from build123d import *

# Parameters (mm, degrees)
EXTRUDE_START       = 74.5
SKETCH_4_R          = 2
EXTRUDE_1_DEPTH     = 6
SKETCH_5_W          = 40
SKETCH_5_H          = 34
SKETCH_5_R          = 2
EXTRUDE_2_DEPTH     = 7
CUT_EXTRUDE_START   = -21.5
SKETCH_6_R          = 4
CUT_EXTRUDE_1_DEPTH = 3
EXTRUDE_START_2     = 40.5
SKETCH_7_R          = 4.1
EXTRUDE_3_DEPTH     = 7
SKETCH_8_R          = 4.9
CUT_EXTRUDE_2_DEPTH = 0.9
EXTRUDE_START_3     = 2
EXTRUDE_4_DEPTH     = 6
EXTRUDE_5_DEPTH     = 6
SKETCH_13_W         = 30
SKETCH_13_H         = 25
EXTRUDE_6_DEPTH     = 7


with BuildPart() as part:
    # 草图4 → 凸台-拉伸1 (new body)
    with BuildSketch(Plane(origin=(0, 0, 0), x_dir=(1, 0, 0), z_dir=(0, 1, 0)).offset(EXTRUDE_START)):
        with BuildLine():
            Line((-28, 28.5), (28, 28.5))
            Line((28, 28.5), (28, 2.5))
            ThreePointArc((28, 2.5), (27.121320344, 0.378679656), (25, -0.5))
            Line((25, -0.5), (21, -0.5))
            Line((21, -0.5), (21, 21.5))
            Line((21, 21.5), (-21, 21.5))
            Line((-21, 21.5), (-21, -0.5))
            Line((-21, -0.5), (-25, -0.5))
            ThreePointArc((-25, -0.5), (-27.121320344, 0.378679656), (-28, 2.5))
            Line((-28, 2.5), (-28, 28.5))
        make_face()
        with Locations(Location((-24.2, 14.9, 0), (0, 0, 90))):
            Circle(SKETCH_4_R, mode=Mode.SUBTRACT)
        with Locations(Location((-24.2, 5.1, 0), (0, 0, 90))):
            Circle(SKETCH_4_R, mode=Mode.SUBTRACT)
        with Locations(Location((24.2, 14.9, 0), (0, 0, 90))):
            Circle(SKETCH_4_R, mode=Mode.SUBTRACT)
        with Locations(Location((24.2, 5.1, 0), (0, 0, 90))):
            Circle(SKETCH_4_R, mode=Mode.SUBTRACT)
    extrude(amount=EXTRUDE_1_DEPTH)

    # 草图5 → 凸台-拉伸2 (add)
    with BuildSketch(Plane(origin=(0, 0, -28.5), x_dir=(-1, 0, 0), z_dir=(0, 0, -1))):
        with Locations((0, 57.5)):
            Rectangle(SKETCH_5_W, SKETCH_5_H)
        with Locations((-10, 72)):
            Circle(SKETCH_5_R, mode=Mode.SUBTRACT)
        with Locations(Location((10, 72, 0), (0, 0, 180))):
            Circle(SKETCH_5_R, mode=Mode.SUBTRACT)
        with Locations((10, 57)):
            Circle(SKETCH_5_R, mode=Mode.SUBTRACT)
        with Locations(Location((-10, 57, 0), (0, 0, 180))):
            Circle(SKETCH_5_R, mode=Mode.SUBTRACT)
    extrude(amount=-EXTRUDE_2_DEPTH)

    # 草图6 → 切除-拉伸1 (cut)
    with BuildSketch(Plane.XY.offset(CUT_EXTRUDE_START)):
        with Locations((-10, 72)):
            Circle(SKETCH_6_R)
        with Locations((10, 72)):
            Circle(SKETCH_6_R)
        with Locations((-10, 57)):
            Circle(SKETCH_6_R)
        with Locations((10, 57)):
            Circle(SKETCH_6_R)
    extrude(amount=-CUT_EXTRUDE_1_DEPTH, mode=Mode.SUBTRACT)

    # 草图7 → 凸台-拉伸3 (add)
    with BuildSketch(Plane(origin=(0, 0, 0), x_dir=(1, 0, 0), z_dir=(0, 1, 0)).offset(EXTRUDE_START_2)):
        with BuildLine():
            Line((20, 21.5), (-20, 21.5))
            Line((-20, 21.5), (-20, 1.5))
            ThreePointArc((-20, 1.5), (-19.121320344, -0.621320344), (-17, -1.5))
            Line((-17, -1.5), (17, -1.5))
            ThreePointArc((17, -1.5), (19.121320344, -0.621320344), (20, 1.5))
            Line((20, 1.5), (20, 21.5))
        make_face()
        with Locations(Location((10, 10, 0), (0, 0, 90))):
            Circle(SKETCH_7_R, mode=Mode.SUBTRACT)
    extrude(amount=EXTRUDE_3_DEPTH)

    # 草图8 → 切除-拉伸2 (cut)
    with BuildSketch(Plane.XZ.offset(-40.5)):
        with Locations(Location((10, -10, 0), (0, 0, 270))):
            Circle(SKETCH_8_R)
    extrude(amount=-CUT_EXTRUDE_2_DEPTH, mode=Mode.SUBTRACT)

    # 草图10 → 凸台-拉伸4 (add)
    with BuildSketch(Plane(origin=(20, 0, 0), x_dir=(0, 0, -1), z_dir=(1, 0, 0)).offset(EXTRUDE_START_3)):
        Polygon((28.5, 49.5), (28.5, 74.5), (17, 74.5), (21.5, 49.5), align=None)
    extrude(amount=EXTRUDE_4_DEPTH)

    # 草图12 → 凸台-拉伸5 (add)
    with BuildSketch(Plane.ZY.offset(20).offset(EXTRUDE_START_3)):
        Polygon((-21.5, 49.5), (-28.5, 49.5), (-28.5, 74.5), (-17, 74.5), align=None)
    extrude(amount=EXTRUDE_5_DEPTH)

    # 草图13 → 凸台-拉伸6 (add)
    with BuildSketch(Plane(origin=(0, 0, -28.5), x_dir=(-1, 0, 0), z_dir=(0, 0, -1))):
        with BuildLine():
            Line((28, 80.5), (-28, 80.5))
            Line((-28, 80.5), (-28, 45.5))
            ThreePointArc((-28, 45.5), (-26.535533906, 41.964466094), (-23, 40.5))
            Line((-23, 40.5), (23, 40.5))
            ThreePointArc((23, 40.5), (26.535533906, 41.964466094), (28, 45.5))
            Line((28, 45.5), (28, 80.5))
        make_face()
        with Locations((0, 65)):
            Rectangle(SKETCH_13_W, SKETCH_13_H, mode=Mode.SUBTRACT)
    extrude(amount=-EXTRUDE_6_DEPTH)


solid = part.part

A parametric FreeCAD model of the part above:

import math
import FreeCAD as App
import Part
import Sketcher

V = App.Vector

doc = App.newDocument("Part")
params = doc.addObject("Spreadsheet::Sheet", "Params")
for row, (alias, value) in enumerate([
    ("sketch1_diameter", "4 mm"),
    ("sketch1_radius", "3 mm"),
    ("sketch1_width", "56 mm"),
    ("sketch1_width2", "4 mm"),
    ("sketch1_height", "26 mm"),
    ("pad1_length", "6 mm"),
    ("sketch2_diameter", "4 mm"),
    ("sketch2_width", "40 mm"),
    ("sketch2_height", "34 mm"),
    ("pad2_length", "7 mm"),
    ("sketch3_diameter", "8 mm"),
    ("pocket1_length", "3 mm"),
    ("sketch4_radius", "3 mm"),
    ("sketch4_diameter", "8.2 mm"),
    ("sketch4_width", "40 mm"),
    ("sketch4_height", "20 mm"),
    ("pad3_length", "7 mm"),
    ("sketch5_diameter", "9.8 mm"),
    ("pocket2_length", "0.9 mm"),
    ("sketch6_width", "25 mm"),
    ("sketch6_height", "7 mm"),
    ("sketch6_height2", "11.5 mm"),
    ("pad4_length", "6 mm"),
    ("sketch7_width", "25 mm"),
    ("sketch7_height", "7 mm"),
    ("sketch7_height2", "11.5 mm"),
    ("pad5_length", "6 mm"),
    ("sketch8_radius", "5 mm"),
    ("sketch8_width", "56 mm"),
    ("sketch8_width2", "30 mm"),
    ("sketch8_height", "35 mm"),
    ("sketch8_height2", "25 mm"),
    ("pad6_length", "7 mm"),
], start=1):
    params.set(f"A{row}", alias)
    params.set(f"B{row}", "=" + value)
    params.setAlias(f"B{row}", alias)

body = doc.addObject("PartDesign::Body", "Body")

# Sketch on XZ plane
sketch1 = doc.addObject("Sketcher::SketchObject", "Sketch")
body.addObject(sketch1)
sketch1.AttachmentSupport = (doc.XZ_Plane, [""])
sketch1.MapMode = "FlatFace"
sketch1.AttachmentOffset = App.Placement(V(0, 0, -74.5), App.Rotation())
sketch1.addGeometry([
    Part.LineSegment(V(28, -28.5, 0), V(-28, -28.5, 0)),  # 0
    Part.LineSegment(V(-28, -28.5, 0), V(-28, -2.5, 0)),  # 1
    Part.ArcOfCircle(Part.Circle(V(-25, -2.5, 0), V(0, 0, 1), 3), math.radians(90), math.radians(180)),  # 2
    Part.LineSegment(V(-25, 0.5, 0), V(-21, 0.5, 0)),  # 3
    Part.LineSegment(V(-21, 0.5, 0), V(-21, -21.5, 0)),  # 4
    Part.LineSegment(V(-21, -21.5, 0), V(21, -21.5, 0)),  # 5
    Part.LineSegment(V(21, -21.5, 0), V(21, 0.5, 0)),  # 6
    Part.LineSegment(V(21, 0.5, 0), V(25, 0.5, 0)),  # 7
    Part.ArcOfCircle(Part.Circle(V(25, -2.5, 0), V(0, 0, 1), 3), math.radians(0), math.radians(90)),  # 8
    Part.LineSegment(V(28, -2.5, 0), V(28, -28.5, 0)),  # 9
    Part.Circle(V(24.2, -5.1, 0), V(0, 0, 1), 2),  # 10
    Part.Circle(V(-24.2, -5.1, 0), V(0, 0, 1), 2),  # 11
    Part.Circle(V(24.2, -14.9, 0), V(0, 0, 1), 2),  # 12
    Part.Circle(V(-24.2, -14.9, 0), V(0, 0, 1), 2),  # 13
], False)
sketch1.addConstraint([
    Sketcher.Constraint("Coincident", 0, 2, 1, 1),
    Sketcher.Constraint("Tangent", 1, 2, 2, 2),
    Sketcher.Constraint("Tangent", 2, 1, 3, 1),
    Sketcher.Constraint("Coincident", 3, 2, 4, 1),
    Sketcher.Constraint("Coincident", 4, 2, 5, 1),
    Sketcher.Constraint("Coincident", 5, 2, 6, 1),
    Sketcher.Constraint("Coincident", 6, 2, 7, 1),
    Sketcher.Constraint("Tangent", 7, 2, 8, 2),
    Sketcher.Constraint("Tangent", 8, 1, 9, 1),
    Sketcher.Constraint("Coincident", 9, 2, 0, 1),
    Sketcher.Constraint("Horizontal", 0),
    Sketcher.Constraint("Vertical", 1),
    Sketcher.Constraint("Horizontal", 3),
    Sketcher.Constraint("Vertical", 4),
    Sketcher.Constraint("Horizontal", 5),
    Sketcher.Constraint("Vertical", 6),
    Sketcher.Constraint("Horizontal", 7),
    Sketcher.Constraint("Vertical", 9),
    Sketcher.Constraint("Equal", 2, 8),
    Sketcher.Constraint("Equal", 10, 11),
    Sketcher.Constraint("Equal", 11, 12),
    Sketcher.Constraint("Equal", 12, 13),
    Sketcher.Constraint("Symmetric", 2, 3, 8, 3, -2),
    Sketcher.Constraint("Symmetric", 10, 3, 11, 3, -2),
    Sketcher.Constraint("Symmetric", 12, 3, 13, 3, -2),
    Sketcher.Constraint("Vertical", 10, 3, 12, 3),
    Sketcher.Constraint("Equal", 3, 7),
    Sketcher.Constraint("Diameter", 10, 4.0),
    Sketcher.Constraint("Radius", 2, 3.0),
    Sketcher.Constraint("DistanceX", 0, 2, 0, 1, 56.0),
    Sketcher.Constraint("DistanceX", 3, 1, 3, 2, 4.0),
    Sketcher.Constraint("DistanceY", 1, 1, 1, 2, 26.0),
    Sketcher.Constraint("DistanceY", 4, 2, 4, 1, 22.0),
    Sketcher.Constraint("DistanceY", 2, 3, -1, 1, 2.5),
    Sketcher.Constraint("DistanceX", -1, 1, 10, 3, 24.2),
    Sketcher.Constraint("DistanceY", 10, 3, -1, 1, 5.1),
    Sketcher.Constraint("DistanceY", 12, 3, -1, 1, 14.9),
])
sketch1.setExpression("Constraints[27]", "Params.sketch1_diameter")
sketch1.setExpression("Constraints[28]", "Params.sketch1_radius")
sketch1.setExpression("Constraints[29]", "Params.sketch1_width")
sketch1.setExpression("Constraints[30]", "Params.sketch1_width2")
sketch1.setExpression("Constraints[31]", "Params.sketch1_height")
pad1 = doc.addObject("PartDesign::Pad", "Pad")
body.addObject(pad1)
pad1.Profile = sketch1
pad1.setExpression("Length", "Params.pad1_length")
pad1.Reversed = True

# Sketch on XY plane
sketch2 = doc.addObject("Sketcher::SketchObject", "Sketch001")
body.addObject(sketch2)
sketch2.AttachmentSupport = (doc.XY_Plane, [""])
sketch2.MapMode = "FlatFace"
sketch2.AttachmentOffset = App.Placement(V(0, 0, -28.5), App.Rotation())
sketch2.addGeometry([
    Part.LineSegment(V(20, 74.5, 0), V(20, 40.5, 0)),  # 0
    Part.LineSegment(V(20, 40.5, 0), V(-20, 40.5, 0)),  # 1
    Part.LineSegment(V(-20, 40.5, 0), V(-20, 74.5, 0)),  # 2
    Part.LineSegment(V(-20, 74.5, 0), V(20, 74.5, 0)),  # 3
    Part.Circle(V(10, 57, 0), V(0, 0, 1), 2),  # 4
    Part.Circle(V(-10, 57, 0), V(0, 0, 1), 2),  # 5
    Part.Circle(V(10, 72, 0), V(0, 0, 1), 2),  # 6
    Part.Circle(V(-10, 72, 0), V(0, 0, 1), 2),  # 7
], False)
sketch2.addConstraint([
    Sketcher.Constraint("Coincident", 0, 2, 1, 1),
    Sketcher.Constraint("Coincident", 1, 2, 2, 1),
    Sketcher.Constraint("Coincident", 2, 2, 3, 1),
    Sketcher.Constraint("Coincident", 3, 2, 0, 1),
    Sketcher.Constraint("Vertical", 0),
    Sketcher.Constraint("Horizontal", 1),
    Sketcher.Constraint("Vertical", 2),
    Sketcher.Constraint("Horizontal", 3),
    Sketcher.Constraint("Equal", 4, 5),
    Sketcher.Constraint("Equal", 5, 6),
    Sketcher.Constraint("Equal", 6, 7),
    Sketcher.Constraint("Symmetric", 4, 3, 5, 3, -2),
    Sketcher.Constraint("Symmetric", 6, 3, 7, 3, -2),
    Sketcher.Constraint("Vertical", 4, 3, 6, 3),
    Sketcher.Constraint("Diameter", 4, 4.0),
    Sketcher.Constraint("DistanceX", 1, 2, 1, 1, 40.0),
    Sketcher.Constraint("DistanceY", 0, 2, 0, 1, 34.0),
    Sketcher.Constraint("DistanceX", -1, 1, 4, 3, 10.0),
    Sketcher.Constraint("DistanceY", -1, 1, 4, 3, 57.0),
    Sketcher.Constraint("DistanceY", -1, 1, 6, 3, 72.0),
    Sketcher.Constraint("DistanceX", -1, 1, 0, 2, 20.0),
    Sketcher.Constraint("DistanceY", -1, 1, 0, 2, 40.5),
])
sketch2.setExpression("Constraints[14]", "Params.sketch2_diameter")
sketch2.setExpression("Constraints[15]", "Params.sketch2_width")
sketch2.setExpression("Constraints[16]", "Params.sketch2_height")
pad2 = doc.addObject("PartDesign::Pad", "Pad001")
body.addObject(pad2)
pad2.Profile = sketch2
pad2.setExpression("Length", "Params.pad2_length")

# Sketch on XY plane
sketch3 = doc.addObject("Sketcher::SketchObject", "Sketch002")
body.addObject(sketch3)
sketch3.AttachmentSupport = (doc.XY_Plane, [""])
sketch3.MapMode = "FlatFace"
sketch3.AttachmentOffset = App.Placement(V(0, 0, -21.5), App.Rotation())
sketch3.addGeometry([
    Part.Circle(V(-10, 72, 0), V(0, 0, 1), 4),
    Part.Circle(V(10, 72, 0), V(0, 0, 1), 4),
    Part.Circle(V(-10, 57, 0), V(0, 0, 1), 4),
    Part.Circle(V(10, 57, 0), V(0, 0, 1), 4),
], False)
sketch3.addConstraint([
    Sketcher.Constraint("Equal", 0, 1),
    Sketcher.Constraint("Equal", 1, 2),
    Sketcher.Constraint("Equal", 2, 3),
    Sketcher.Constraint("Symmetric", 0, 3, 1, 3, -2),
    Sketcher.Constraint("Symmetric", 2, 3, 3, 3, -2),
    Sketcher.Constraint("Vertical", 0, 3, 2, 3),
    Sketcher.Constraint("Diameter", 0, 8.0),
    Sketcher.Constraint("DistanceX", 0, 3, -1, 1, 10.0),
    Sketcher.Constraint("DistanceY", -1, 1, 0, 3, 72.0),
    Sketcher.Constraint("DistanceY", -1, 1, 2, 3, 57.0),
])
sketch3.setExpression("Constraints[6]", "Params.sketch3_diameter")
pocket1 = doc.addObject("PartDesign::Pocket", "Pocket")
body.addObject(pocket1)
pocket1.Profile = sketch3
pocket1.setExpression("Length", "Params.pocket1_length")

# Sketch on XZ plane
sketch4 = doc.addObject("Sketcher::SketchObject", "Sketch003")
body.addObject(sketch4)
sketch4.AttachmentSupport = (doc.XZ_Plane, [""])
sketch4.MapMode = "FlatFace"
sketch4.AttachmentOffset = App.Placement(V(0, 0, -40.5), App.Rotation())
sketch4.addGeometry([
    Part.LineSegment(V(20, -21.5, 0), V(-20, -21.5, 0)),  # 0
    Part.LineSegment(V(-20, -21.5, 0), V(-20, -1.5, 0)),  # 1
    Part.ArcOfCircle(Part.Circle(V(-17, -1.5, 0), V(0, 0, 1), 3), math.radians(90), math.radians(180)),  # 2
    Part.LineSegment(V(-17, 1.5, 0), V(17, 1.5, 0)),  # 3
    Part.ArcOfCircle(Part.Circle(V(17, -1.5, 0), V(0, 0, 1), 3), math.radians(0), math.radians(90)),  # 4
    Part.LineSegment(V(20, -1.5, 0), V(20, -21.5, 0)),  # 5
    Part.Circle(V(10, -10, 0), V(0, 0, 1), 4.1),  # 6
], False)
sketch4.addConstraint([
    Sketcher.Constraint("Coincident", 0, 2, 1, 1),
    Sketcher.Constraint("Tangent", 1, 2, 2, 2),
    Sketcher.Constraint("Tangent", 2, 1, 3, 1),
    Sketcher.Constraint("Tangent", 3, 2, 4, 2),
    Sketcher.Constraint("Tangent", 4, 1, 5, 1),
    Sketcher.Constraint("Coincident", 5, 2, 0, 1),
    Sketcher.Constraint("Horizontal", 0),
    Sketcher.Constraint("Vertical", 1),
    Sketcher.Constraint("Horizontal", 3),
    Sketcher.Constraint("Vertical", 5),
    Sketcher.Constraint("Equal", 2, 4),
    Sketcher.Constraint("Radius", 2, 3.0),
    Sketcher.Constraint("Diameter", 6, 8.2),
    Sketcher.Constraint("DistanceX", 0, 2, 0, 1, 40.0),
    Sketcher.Constraint("DistanceY", 1, 1, 1, 2, 20.0),
    Sketcher.Constraint("DistanceX", 2, 3, -1, 1, 17.0),
    Sketcher.Constraint("DistanceX", -1, 1, 6, 3, 10.0),
    Sketcher.Constraint("DistanceY", 6, 3, -1, 1, 10.0),
    Sketcher.Constraint("DistanceY", 2, 3, -1, 1, 1.5),
])
sketch4.setExpression("Constraints[11]", "Params.sketch4_radius")
sketch4.setExpression("Constraints[12]", "Params.sketch4_diameter")
sketch4.setExpression("Constraints[13]", "Params.sketch4_width")
sketch4.setExpression("Constraints[14]", "Params.sketch4_height")
pad3 = doc.addObject("PartDesign::Pad", "Pad002")
body.addObject(pad3)
pad3.Profile = sketch4
pad3.setExpression("Length", "Params.pad3_length")
pad3.Reversed = True

# Sketch on XZ plane
sketch5 = doc.addObject("Sketcher::SketchObject", "Sketch004")
body.addObject(sketch5)
sketch5.AttachmentSupport = (doc.XZ_Plane, [""])
sketch5.MapMode = "FlatFace"
sketch5.AttachmentOffset = App.Placement(V(0, 0, -40.5), App.Rotation())
sketch5.addGeometry(Part.Circle(V(10, -10, 0), V(0, 0, 1), 4.9), False)
sketch5.addConstraint([
    Sketcher.Constraint("Diameter", 0, 9.8),
    Sketcher.Constraint("DistanceX", -1, 1, 0, 3, 10.0),
    Sketcher.Constraint("DistanceY", 0, 3, -1, 1, 10.0),
])
sketch5.setExpression("Constraints[0]", "Params.sketch5_diameter")
pocket2 = doc.addObject("PartDesign::Pocket", "Pocket001")
body.addObject(pocket2)
pocket2.Profile = sketch5
pocket2.setExpression("Length", "Params.pocket2_length")

# Sketch on YZ plane
sketch6 = doc.addObject("Sketcher::SketchObject", "Sketch005")
body.addObject(sketch6)
sketch6.AttachmentSupport = (doc.YZ_Plane, [""])
sketch6.MapMode = "FlatFace"
sketch6.AttachmentOffset = App.Placement(V(0, 0, 22), App.Rotation())
sketch6.addGeometry([
    Part.LineSegment(V(50, -28, 0), V(74, -28, 0)),
    Part.LineSegment(V(74, -28, 0), V(74, -17, 0)),
    Part.LineSegment(V(74, -17, 0), V(50, -22, 0)),
    Part.LineSegment(V(50, -22, 0), V(50, -28, 0)),
], False)
sketch6.addConstraint([
    Sketcher.Constraint("Coincident", 0, 2, 1, 1),
    Sketcher.Constraint("Coincident", 1, 2, 2, 1),
    Sketcher.Constraint("Coincident", 2, 2, 3, 1),
    Sketcher.Constraint("Coincident", 3, 2, 0, 1),
    Sketcher.Constraint("Horizontal", 0),
    Sketcher.Constraint("Vertical", 1),
    Sketcher.Constraint("Vertical", 3),
    Sketcher.Constraint("DistanceX", 0, 1, 0, 2, 25.0),
    Sketcher.Constraint("DistanceY", 3, 2, 3, 1, 7.0),
    Sketcher.Constraint("DistanceY", 1, 1, 1, 2, 11.5),
    Sketcher.Constraint("DistanceY", 1, 2, -1, 1, 17.0),
    Sketcher.Constraint("DistanceX", -1, 1, 0, 2, 74.5),
])
sketch6.setExpression("Constraints[7]", "Params.sketch6_width")
sketch6.setExpression("Constraints[8]", "Params.sketch6_height")
sketch6.setExpression("Constraints[9]", "Params.sketch6_height2")
pad4 = doc.addObject("PartDesign::Pad", "Pad003")
body.addObject(pad4)
pad4.Profile = sketch6
pad4.setExpression("Length", "Params.pad4_length")

# Sketch on YZ plane
sketch7 = doc.addObject("Sketcher::SketchObject", "Sketch006")
body.addObject(sketch7)
sketch7.AttachmentSupport = (doc.YZ_Plane, [""])
sketch7.MapMode = "FlatFace"
sketch7.AttachmentOffset = App.Placement(V(0, 0, -22), App.Rotation())
sketch7.addGeometry([
    Part.LineSegment(V(50, -28, 0), V(50, -22, 0)),
    Part.LineSegment(V(50, -22, 0), V(74, -17, 0)),
    Part.LineSegment(V(74, -17, 0), V(74, -28, 0)),
    Part.LineSegment(V(74, -28, 0), V(50, -28, 0)),
], False)
sketch7.addConstraint([
    Sketcher.Constraint("Coincident", 0, 2, 1, 1),
    Sketcher.Constraint("Coincident", 1, 2, 2, 1),
    Sketcher.Constraint("Coincident", 2, 2, 3, 1),
    Sketcher.Constraint("Coincident", 3, 2, 0, 1),
    Sketcher.Constraint("Vertical", 0),
    Sketcher.Constraint("Vertical", 2),
    Sketcher.Constraint("Horizontal", 3),
    Sketcher.Constraint("DistanceX", 3, 2, 3, 1, 25.0),
    Sketcher.Constraint("DistanceY", 0, 1, 0, 2, 7.0),
    Sketcher.Constraint("DistanceY", 2, 2, 2, 1, 11.5),
    Sketcher.Constraint("DistanceY", 1, 2, -1, 1, 17.0),
    Sketcher.Constraint("DistanceX", -1, 1, 0, 2, 49.5),
])
sketch7.setExpression("Constraints[7]", "Params.sketch7_width")
sketch7.setExpression("Constraints[8]", "Params.sketch7_height")
sketch7.setExpression("Constraints[9]", "Params.sketch7_height2")
pad5 = doc.addObject("PartDesign::Pad", "Pad004")
body.addObject(pad5)
pad5.Profile = sketch7
pad5.setExpression("Length", "Params.pad5_length")
pad5.Reversed = True

# Sketch on XY plane
sketch8 = doc.addObject("Sketcher::SketchObject", "Sketch007")
body.addObject(sketch8)
sketch8.AttachmentSupport = (doc.XY_Plane, [""])
sketch8.MapMode = "FlatFace"
sketch8.AttachmentOffset = App.Placement(V(0, 0, -28.5), App.Rotation())
sketch8.addGeometry([
    Part.LineSegment(V(-28, 80, 0), V(28, 80, 0)),  # 0
    Part.LineSegment(V(28, 80, 0), V(28, 46, 0)),  # 1
    Part.ArcOfCircle(Part.Circle(V(23, 46, 0), V(0, 0, 1), 5), math.radians(-90), math.radians(0)),  # 2
    Part.LineSegment(V(23, 40, 0), V(-23, 40, 0)),  # 3
    Part.ArcOfCircle(Part.Circle(V(-23, 46, 0), V(0, 0, 1), 5), math.radians(180), math.radians(270)),  # 4
    Part.LineSegment(V(-28, 46, 0), V(-28, 80, 0)),  # 5
    Part.LineSegment(V(-15, 52, 0), V(15, 52, 0)),  # 6
    Part.LineSegment(V(15, 52, 0), V(15, 78, 0)),  # 7
    Part.LineSegment(V(15, 78, 0), V(-15, 78, 0)),  # 8
    Part.LineSegment(V(-15, 78, 0), V(-15, 52, 0)),  # 9
], False)
sketch8.addConstraint([
    Sketcher.Constraint("Coincident", 0, 2, 1, 1),
    Sketcher.Constraint("Tangent", 1, 2, 2, 2),
    Sketcher.Constraint("Tangent", 2, 1, 3, 1),
    Sketcher.Constraint("Tangent", 3, 2, 4, 2),
    Sketcher.Constraint("Tangent", 4, 1, 5, 1),
    Sketcher.Constraint("Coincident", 5, 2, 0, 1),
    Sketcher.Constraint("Coincident", 6, 2, 7, 1),
    Sketcher.Constraint("Coincident", 7, 2, 8, 1),
    Sketcher.Constraint("Coincident", 8, 2, 9, 1),
    Sketcher.Constraint("Coincident", 9, 2, 6, 1),
    Sketcher.Constraint("Horizontal", 0),
    Sketcher.Constraint("Vertical", 1),
    Sketcher.Constraint("Horizontal", 3),
    Sketcher.Constraint("Vertical", 5),
    Sketcher.Constraint("Horizontal", 6),
    Sketcher.Constraint("Vertical", 7),
    Sketcher.Constraint("Horizontal", 8),
    Sketcher.Constraint("Vertical", 9),
    Sketcher.Constraint("Equal", 2, 4),
    Sketcher.Constraint("Radius", 2, 5.0),
    Sketcher.Constraint("DistanceX", 0, 1, 0, 2, 56.0),
    Sketcher.Constraint("DistanceX", 6, 1, 6, 2, 30.0),
    Sketcher.Constraint("DistanceY", 1, 2, 1, 1, 35.0),
    Sketcher.Constraint("DistanceY", 7, 1, 7, 2, 25.0),
    Sketcher.Constraint("DistanceX", -1, 1, 2, 3, 23.0),
    Sketcher.Constraint("DistanceX", -1, 1, 6, 2, 15.0),
    Sketcher.Constraint("DistanceY", 2, 3, 6, 2, 7.0),
    Sketcher.Constraint("DistanceY", -1, 1, 2, 3, 45.5),
])
sketch8.setExpression("Constraints[19]", "Params.sketch8_radius")
sketch8.setExpression("Constraints[20]", "Params.sketch8_width")
sketch8.setExpression("Constraints[21]", "Params.sketch8_width2")
sketch8.setExpression("Constraints[22]", "Params.sketch8_height")
sketch8.setExpression("Constraints[23]", "Params.sketch8_height2")
pad6 = doc.addObject("PartDesign::Pad", "Pad005")
body.addObject(pad6)
pad6.Profile = sketch8
pad6.setExpression("Length", "Params.pad6_length")

doc.recompute()
